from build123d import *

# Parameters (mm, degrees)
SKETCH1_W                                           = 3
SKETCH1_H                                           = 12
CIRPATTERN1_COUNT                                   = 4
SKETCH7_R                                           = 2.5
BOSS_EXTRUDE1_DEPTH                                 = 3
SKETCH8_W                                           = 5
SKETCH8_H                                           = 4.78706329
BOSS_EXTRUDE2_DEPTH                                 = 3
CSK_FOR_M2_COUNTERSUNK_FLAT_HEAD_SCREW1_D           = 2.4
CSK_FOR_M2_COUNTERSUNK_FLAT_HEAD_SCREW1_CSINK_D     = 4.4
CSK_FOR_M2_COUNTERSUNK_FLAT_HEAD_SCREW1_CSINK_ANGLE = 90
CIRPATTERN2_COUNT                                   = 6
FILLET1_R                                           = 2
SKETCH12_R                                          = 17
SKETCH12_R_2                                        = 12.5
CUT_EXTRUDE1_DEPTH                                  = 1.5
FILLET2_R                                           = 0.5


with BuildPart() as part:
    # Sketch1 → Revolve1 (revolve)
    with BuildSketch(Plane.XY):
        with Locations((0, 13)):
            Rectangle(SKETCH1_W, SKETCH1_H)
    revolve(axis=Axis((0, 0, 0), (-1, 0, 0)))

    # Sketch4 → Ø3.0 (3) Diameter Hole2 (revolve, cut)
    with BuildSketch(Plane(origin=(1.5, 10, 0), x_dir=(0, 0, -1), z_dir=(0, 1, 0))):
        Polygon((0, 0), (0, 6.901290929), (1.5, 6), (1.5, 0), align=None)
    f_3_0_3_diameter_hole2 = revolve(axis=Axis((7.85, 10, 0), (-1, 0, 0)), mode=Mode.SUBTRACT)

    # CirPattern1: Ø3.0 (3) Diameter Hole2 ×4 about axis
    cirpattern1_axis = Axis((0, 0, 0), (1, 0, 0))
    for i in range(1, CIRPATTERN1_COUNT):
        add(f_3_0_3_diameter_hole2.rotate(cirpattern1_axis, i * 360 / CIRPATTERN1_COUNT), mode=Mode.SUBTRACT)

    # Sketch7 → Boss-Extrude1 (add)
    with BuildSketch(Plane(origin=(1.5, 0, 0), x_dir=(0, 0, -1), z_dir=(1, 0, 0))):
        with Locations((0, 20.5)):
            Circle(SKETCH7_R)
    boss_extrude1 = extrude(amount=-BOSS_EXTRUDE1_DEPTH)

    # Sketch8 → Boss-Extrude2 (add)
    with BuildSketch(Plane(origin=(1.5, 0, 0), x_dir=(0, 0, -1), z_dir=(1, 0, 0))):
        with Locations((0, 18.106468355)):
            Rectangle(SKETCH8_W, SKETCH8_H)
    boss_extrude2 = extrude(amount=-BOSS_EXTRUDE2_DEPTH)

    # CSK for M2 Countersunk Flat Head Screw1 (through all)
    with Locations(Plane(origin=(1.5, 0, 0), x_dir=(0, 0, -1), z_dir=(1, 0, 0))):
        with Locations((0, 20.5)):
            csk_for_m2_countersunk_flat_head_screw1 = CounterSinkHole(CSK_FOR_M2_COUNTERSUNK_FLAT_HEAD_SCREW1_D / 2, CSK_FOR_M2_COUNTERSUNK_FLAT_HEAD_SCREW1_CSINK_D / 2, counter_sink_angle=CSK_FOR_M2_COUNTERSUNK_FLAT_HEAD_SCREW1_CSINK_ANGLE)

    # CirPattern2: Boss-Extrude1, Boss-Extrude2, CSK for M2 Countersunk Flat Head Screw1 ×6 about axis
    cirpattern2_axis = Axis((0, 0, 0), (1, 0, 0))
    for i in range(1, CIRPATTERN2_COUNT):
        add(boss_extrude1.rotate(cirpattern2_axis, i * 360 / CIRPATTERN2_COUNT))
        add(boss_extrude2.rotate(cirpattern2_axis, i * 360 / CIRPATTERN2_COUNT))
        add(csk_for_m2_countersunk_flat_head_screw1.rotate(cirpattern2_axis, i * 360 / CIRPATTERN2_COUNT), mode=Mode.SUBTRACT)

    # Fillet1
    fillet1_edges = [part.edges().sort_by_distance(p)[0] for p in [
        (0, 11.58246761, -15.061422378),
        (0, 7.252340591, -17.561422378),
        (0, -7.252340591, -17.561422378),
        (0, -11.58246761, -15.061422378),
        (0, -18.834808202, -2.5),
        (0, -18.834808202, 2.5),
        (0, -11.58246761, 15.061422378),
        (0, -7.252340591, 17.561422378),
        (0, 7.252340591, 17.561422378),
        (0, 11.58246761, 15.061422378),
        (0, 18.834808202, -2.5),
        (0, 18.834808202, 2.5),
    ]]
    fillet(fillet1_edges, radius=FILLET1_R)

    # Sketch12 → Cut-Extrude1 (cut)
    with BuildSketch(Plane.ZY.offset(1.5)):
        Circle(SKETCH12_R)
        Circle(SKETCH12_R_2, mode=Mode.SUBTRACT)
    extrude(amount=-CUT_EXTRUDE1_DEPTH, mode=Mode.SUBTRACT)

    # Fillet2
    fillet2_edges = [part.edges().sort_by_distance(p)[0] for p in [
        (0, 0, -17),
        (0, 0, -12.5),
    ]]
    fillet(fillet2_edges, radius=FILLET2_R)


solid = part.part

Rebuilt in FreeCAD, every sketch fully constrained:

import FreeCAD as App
import Part
import Sketcher
Q = App.Units.Quantity


def edges_at(feature, points):
    """Names of the edges that pass closest to the given points."""
    edges = feature.Shape.Edges
    near = lambda p: min(range(len(edges)), key=lambda i: edges[i].distToShape(Part.Vertex(*p))[0])
    return sorted({f"Edge{near(p) + 1}" for p in points})

doc = App.newDocument("Part")
params = doc.addObject("Spreadsheet::Sheet", "Params")
for row, (alias, value) in enumerate([
    ("sketch1_width", "3 mm"),
    ("sketch1_height", "12 mm"),
    ("revolution_angle", "360 deg"),
    ("sketch2_width", "6 mm"),
    ("sketch2_height", "1.5 mm"),
    ("groove_angle", "360 deg"),
    ("sketch3_diameter", "5 mm"),
    ("pad1_length", "3 mm"),
    ("sketch4_height", "5 mm"),
    ("pad2_length", "3 mm"),
    ("sketch5_diameter", "2.4 mm"),
    ("hole_diameter", "2.4 mm"),
    ("hole_csink_diameter", "4.4 mm"),
    ("fillet_radius", "2 mm"),
    ("sketch6_diameter", "34 mm"),
    ("sketch6_diameter2", "25 mm"),
    ("pocket1_length", "1.5 mm"),
    ("fillet2_radius", "0.5 mm"),
], start=1):
    params.set(f"A{row}", alias)
    params.set(f"B{row}", "=" + value)
    params.setAlias(f"B{row}", alias)

body = doc.addObject("PartDesign::Body", "Body")

# Sketch on XY plane
sketch1 = doc.addObject("Sketcher::SketchObject", "Sketch")
body.addObject(sketch1)
sketch1.AttachmentSupport = (doc.XY_Plane, [""])
sketch1.MapMode = "FlatFace"
sketch1.addGeometry(Part.LineSegment(App.Vector(-1.5, 19, 0), App.Vector(-1.5, 7, 0)), False)
sketch1.addGeometry(Part.LineSegment(App.Vector(-1.5, 7, 0), App.Vector(1.5, 7, 0)), False)
sketch1.addGeometry(Part.LineSegment(App.Vector(1.5, 7, 0), App.Vector(1.5, 19, 0)), False)
sketch1.addGeometry(Part.LineSegment(App.Vector(1.5, 19, 0), App.Vector(-1.5, 19, 0)), False)
sketch1.addConstraint(Sketcher.Constraint("Coincident", 0, 2, 1, 1))
sketch1.addConstraint(Sketcher.Constraint("Coincident", 1, 2, 2, 1))
sketch1.addConstraint(Sketcher.Constraint("Coincident", 2, 2, 3, 1))
sketch1.addConstraint(Sketcher.Constraint("Coincident", 3, 2, 0, 1))
sketch1.addConstraint(Sketcher.Constraint("Vertical", 0))
sketch1.addConstraint(Sketcher.Constraint("Horizontal", 1))
sketch1.addConstraint(Sketcher.Constraint("Vertical", 2))
sketch1.addConstraint(Sketcher.Constraint("Horizontal", 3))
sketch1.addConstraint(Sketcher.Constraint("DistanceX", 1, 1, 1, 2, Q("3 mm")))
sketch1.addConstraint(Sketcher.Constraint("DistanceY", 0, 2, 0, 1, Q("12 mm")))
sketch1.addConstraint(Sketcher.Constraint("DistanceY", -1, 1, 0, 2, Q("7 mm")))
sketch1.addConstraint(Sketcher.Constraint("DistanceX", 0, 2, -1, 1, Q("1.5 mm")))
sketch1.setExpression("Constraints[8]", "Params.sketch1_width")
sketch1.setExpression("Constraints[9]", "Params.sketch1_height")
revolution = doc.addObject("PartDesign::Revolution", "Revolution")
body.addObject(revolution)
revolution.Profile = sketch1
revolution.ReferenceAxis = (sketch1, ["H_Axis"])
revolution.setExpression("Angle", "Params.revolution_angle")

# Sketch on XZ plane
sketch2 = doc.addObject("Sketcher::SketchObject", "Sketch001")
body.addObject(sketch2)
sketch2.AttachmentSupport = (doc.XZ_Plane, [""])
sketch2.MapMode = "FlatFace"
sketch2.AttachmentOffset = App.Placement(App.Vector(0, 0, -10), App.Rotation())
sketch2.addGeometry(Part.LineSegment(App.Vector(-5.401291, 0, 0), App.Vector(1.5, 0, 0)), False)
sketch2.addGeometry(Part.LineSegment(App.Vector(1.5, 0, 0), App.Vector(1.5, -1.5, 0)), False)
sketch2.addGeometry(Part.LineSegment(App.Vector(1.5, -1.5, 0), App.Vector(-4.5, -1.5, 0)), False)
sketch2.addGeometry(Part.LineSegment(App.Vector(-4.5, -1.5, 0), App.Vector(-5.401291, 0, 0)), False)
sketch2.addConstraint(Sketcher.Constraint("Coincident", 0, 2, 1, 1))
sketch2.addConstraint(Sketcher.Constraint("Coincident", 1, 2, 2, 1))
sketch2.addConstraint(Sketcher.Constraint("Coincident", 2, 2, 3, 1))
sketch2.addConstraint(Sketcher.Constraint("Coincident", 3, 2, 0, 1))
sketch2.addConstraint(Sketcher.Constraint("Horizontal", 0))
sketch2.addConstraint(Sketcher.Constraint("Vertical", 1))
sketch2.addConstraint(Sketcher.Constraint("Horizontal", 2))
sketch2.addConstraint(Sketcher.Constraint("PointOnObject", 0, 2, -1))
sketch2.addConstraint(Sketcher.Constraint("DistanceX", 2, 2, 2, 1, Q("6 mm")))
sketch2.addConstraint(Sketcher.Constraint("Angle", 3, Q("121 deg")))
sketch2.addConstraint(Sketcher.Constraint("DistanceY", 1, 2, 1, 1, Q("1.5 mm")))
sketch2.addConstraint(Sketcher.Constraint("DistanceX", -1, 1, 0, 2, Q("1.5 mm")))
sketch2.setExpression("Constraints[8]", "Params.sketch2_width")
sketch2.setExpression("Constraints[10]", "Params.sketch2_height")
groove = doc.addObject("PartDesign::Groove", "Groove")
body.addObject(groove)
groove.Profile = sketch2
groove.ReferenceAxis = (sketch2, ["H_Axis"])
groove.setExpression("Angle", "Params.groove_angle")
doc.recompute()

polarpattern = doc.addObject("PartDesign::PolarPattern", "PolarPattern")
body.addObject(polarpattern)
polarpattern.Originals = [groove]
polarpattern.Axis = (doc.X_Axis, [""])
polarpattern.Angle = 360
polarpattern.Occurrences = 4
body.Tip = polarpattern

# Sketch on YZ plane
sketch3 = doc.addObject("Sketcher::SketchObject", "Sketch002")
body.addObject(sketch3)
sketch3.AttachmentSupport = (doc.YZ_Plane, [""])
sketch3.MapMode = "FlatFace"
sketch3.AttachmentOffset = App.Placement(App.Vector(0, 0, 1.5), App.Rotation())
sketch3.addGeometry(Part.Circle(App.Vector(20.5, 0, 0), App.Vector(0, 0, 1), 2.5), False)
sketch3.addConstraint(Sketcher.Constraint("PointOnObject", 0, 3, -1))
sketch3.addConstraint(Sketcher.Constraint("Diameter", 0, Q("5 mm")))
sketch3.addConstraint(Sketcher.Constraint("DistanceX", -1, 1, 0, 3, Q("20.5 mm")))
sketch3.setExpression("Constraints[1]", "Params.sketch3_diameter")
pad1 = doc.addObject("PartDesign::Pad", "Pad")
body.addObject(pad1)
pad1.Profile = sketch3
pad1.setExpression("Length", "Params.pad1_length")
pad1.Reversed = True

# Sketch on YZ plane
sketch4 = doc.addObject("Sketcher::SketchObject", "Sketch003")
body.addObject(sketch4)
sketch4.AttachmentSupport = (doc.YZ_Plane, [""])
sketch4.MapMode = "FlatFace"
sketch4.AttachmentOffset = App.Placement(App.Vector(0, 0, 1.5), App.Rotation())
sketch4.addGeometry(Part.LineSegment(App.Vector(20.5, 2.5, 0), App.Vector(15.712937, 2.5, 0)), False)
sketch4.addGeometry(Part.LineSegment(App.Vector(15.712937, 2.5, 0), App.Vector(15.712937, -2.5, 0)), False)
sketch4.addGeometry(Part.LineSegment(App.Vector(15.712937, -2.5, 0), App.Vector(20.5, -2.5, 0)), False)
sketch4.addGeometry(Part.LineSegment(App.Vector(20.5, -2.5, 0), App.Vector(20.5, 2.5, 0)), False)
sketch4.addConstraint(Sketcher.Constraint("Coincident", 0, 2, 1, 1))
sketch4.addConstraint(Sketcher.Constraint("Coincident", 1, 2, 2, 1))
sketch4.addConstraint(Sketcher.Constraint("Coincident", 2, 2, 3, 1))
sketch4.addConstraint(Sketcher.Constraint("Coincident", 3, 2, 0, 1))
sketch4.addConstraint(Sketcher.Constraint("Horizontal", 0))
sketch4.addConstraint(Sketcher.Constraint("Vertical", 1))
sketch4.addConstraint(Sketcher.Constraint("Horizontal", 2))
sketch4.addConstraint(Sketcher.Constraint("Vertical", 3))
sketch4.addConstraint(Sketcher.Constraint("DistanceY", 1, 2, 1, 1, Q("5 mm")))
sketch4.addConstraint(Sketcher.Constraint("DistanceY", -1, 1, 0, 2, Q("2.5 mm")))
sketch4.addConstraint(Sketcher.Constraint("DistanceX", -1, 1, 2, 2, Q("20.5 mm")))
sketch4.addConstraint(Sketcher.Constraint("DistanceX", 0, 2, 0, 1, Q("4.787063 mm")))
sketch4.setExpression("Constraints[8]", "Params.sketch4_height")
pad2 = doc.addObject("PartDesign::Pad", "Pad001")
body.addObject(pad2)
pad2.Profile = sketch4
pad2.setExpression("Length", "Params.pad2_length")
pad2.Reversed = True

# Sketch on YZ plane
sketch5 = doc.addObject("Sketcher::SketchObject", "Sketch004")
body.addObject(sketch5)
sketch5.AttachmentSupport = (doc.YZ_Plane, [""])
sketch5.MapMode = "FlatFace"
sketch5.AttachmentOffset = App.Placement(App.Vector(0, 0, 1.5), App.Rotation())
sketch5.addGeometry(Part.Circle(App.Vector(20.5, 0, 0), App.Vector(0, 0, 1), 1.2), False)
sketch5.addConstraint(Sketcher.Constraint("PointOnObject", 0, 3, -1))
sketch5.addConstraint(Sketcher.Constraint("Diameter", 0, Q("2.4 mm")))
sketch5.addConstraint(Sketcher.Constraint("DistanceX", -1, 1, 0, 3, Q("20.5 mm")))
sketch5.setExpression("Constraints[1]", "Params.sketch5_diameter")
doc.recompute()
hole = doc.addObject("PartDesign::Hole", "Hole")
body.addObject(hole)
hole.Profile = sketch5
hole.ThreadType = "None"
hole.setExpression("Diameter", "Params.hole_diameter")
hole.DepthType = "ThroughAll"
hole.HoleCutType = "Countersink"
hole.setExpression("HoleCutDiameter", "Params.hole_csink_diameter")
hole.HoleCutCountersinkAngle = 90
doc.recompute()

polarpattern2 = doc.addObject("PartDesign::PolarPattern", "PolarPattern001")
body.addObject(polarpattern2)
polarpattern2.Originals = [pad1, pad2, hole]
polarpattern2.Axis = (doc.X_Axis, [""])
polarpattern2.Angle = 360
polarpattern2.Occurrences = 6
body.Tip = polarpattern2
doc.recompute()

fillet = doc.addObject("PartDesign::Fillet", "Fillet")
body.addObject(fillet)
fillet.Base = (polarpattern2, edges_at(polarpattern2, [
    (0, 11.582, -15.061),
    (0, 7.252, -17.561),
    (0, -7.252, -17.561),
    (0, -11.582, -15.061),
    (0, -18.835, -2.5),
    (0, -18.835, 2.5),
    (0, -11.582, 15.061),
    (0, -7.252, 17.561),
    (0, 7.252, 17.561),
    (0, 11.582, 15.061),
    (0, 18.835, -2.5),
    (0, 18.835, 2.5),
]))
fillet.setExpression("Radius", "Params.fillet_radius")

# Sketch on YZ plane
sketch6 = doc.addObject("Sketcher::SketchObject", "Sketch005")
body.addObject(sketch6)
sketch6.AttachmentSupport = (doc.YZ_Plane, [""])
sketch6.MapMode = "FlatFace"
sketch6.AttachmentOffset = App.Placement(App.Vector(0, 0, -1.5), App.Rotation())
sketch6.addGeometry(Part.Circle(App.Vector(0, 0, 0), App.Vector(0, 0, 1), 17), False)
sketch6.addGeometry(Part.Circle(App.Vector(0, 0, 0), App.Vector(0, 0, 1), 12.5), False)
sketch6.addConstraint(Sketcher.Constraint("Coincident", 0, 3, -1, 1))
sketch6.addConstraint(Sketcher.Constraint("Coincident", 1, 3, -1, 1))
sketch6.addConstraint(Sketcher.Constraint("Diameter", 0, Q("34 mm")))
sketch6.addConstraint(Sketcher.Constraint("Diameter", 1, Q("25 mm")))
sketch6.setExpression("Constraints[2]", "Params.sketch6_diameter")
sketch6.setExpression("Constraints[3]", "Params.sketch6_diameter2")
pocket1 = doc.addObject("PartDesign::Pocket", "Pocket")
body.addObject(pocket1)
pocket1.Profile = sketch6
pocket1.setExpression("Length", "Params.pocket1_length")
pocket1.Reversed = True
doc.recompute()

fillet2 = doc.addObject("PartDesign::Fillet", "Fillet001")
body.addObject(fillet2)
fillet2.Base = (pocket1, edges_at(pocket1, [(0, 0, -17), (0, 0, -12.5)]))
fillet2.setExpression("Radius", "Params.fillet2_radius")

doc.recompute()
